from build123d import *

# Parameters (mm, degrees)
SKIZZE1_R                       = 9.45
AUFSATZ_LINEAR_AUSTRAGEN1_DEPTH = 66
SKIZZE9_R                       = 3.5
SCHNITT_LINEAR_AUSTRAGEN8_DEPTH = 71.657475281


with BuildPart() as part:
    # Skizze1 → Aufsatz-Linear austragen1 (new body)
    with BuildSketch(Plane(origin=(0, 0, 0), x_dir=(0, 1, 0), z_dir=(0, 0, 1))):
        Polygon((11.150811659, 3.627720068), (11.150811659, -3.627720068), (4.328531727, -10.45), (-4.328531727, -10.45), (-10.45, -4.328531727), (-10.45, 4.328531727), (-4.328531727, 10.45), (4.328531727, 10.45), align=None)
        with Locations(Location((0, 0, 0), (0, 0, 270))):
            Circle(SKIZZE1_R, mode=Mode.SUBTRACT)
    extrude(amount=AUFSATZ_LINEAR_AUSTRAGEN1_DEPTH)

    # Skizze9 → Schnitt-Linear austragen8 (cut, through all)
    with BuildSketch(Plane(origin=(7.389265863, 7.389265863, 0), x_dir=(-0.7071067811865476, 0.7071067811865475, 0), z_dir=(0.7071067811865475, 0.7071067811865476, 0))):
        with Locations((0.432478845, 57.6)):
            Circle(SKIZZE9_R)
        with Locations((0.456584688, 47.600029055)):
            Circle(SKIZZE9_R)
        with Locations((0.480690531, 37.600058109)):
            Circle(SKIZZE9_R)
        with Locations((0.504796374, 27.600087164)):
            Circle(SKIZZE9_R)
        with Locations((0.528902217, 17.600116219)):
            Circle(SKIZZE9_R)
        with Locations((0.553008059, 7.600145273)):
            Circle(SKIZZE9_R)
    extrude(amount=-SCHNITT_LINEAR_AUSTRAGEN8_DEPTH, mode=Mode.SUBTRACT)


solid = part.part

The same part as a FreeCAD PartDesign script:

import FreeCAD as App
import Part
import Sketcher

doc = App.newDocument("Part")
params = doc.addObject("Spreadsheet::Sheet", "Params")
for row, (alias, value) in enumerate([
    ("sketch1_diameter", "18.9 mm"),
    ("pad1_length", "66 mm"),
    ("sketch2_diameter", "7 mm"),
], start=1):
    params.set(f"A{row}", alias)
    params.set(f"B{row}", "=" + value)
    params.setAlias(f"B{row}", alias)

body = doc.addObject("PartDesign::Body", "Body")

# Sketch on XY plane
sketch1 = body.newObject("Sketcher::SketchObject", "Sketch")
sketch1.AttachmentSupport = (doc.getObject("XY_Plane"), [""])
sketch1.MapMode = "FlatFace"
sketch1.addGeometry(Part.LineSegment(App.Vector(4, 11, 0), App.Vector(-4, 11, 0)), False)
sketch1.addGeometry(Part.LineSegment(App.Vector(-4, 11, 0), App.Vector(-10, 4, 0)), False)
sketch1.addGeometry(Part.LineSegment(App.Vector(-10, 4, 0), App.Vector(-10, -4, 0)), False)
sketch1.addGeometry(Part.LineSegment(App.Vector(-10, -4, 0), App.Vector(-4, -10, 0)), False)
sketch1.addGeometry(Part.LineSegment(App.Vector(-4, -10, 0), App.Vector(4, -10, 0)), False)
sketch1.addGeometry(Part.LineSegment(App.Vector(4, -10, 0), App.Vector(10, -4, 0)), False)
sketch1.addGeometry(Part.LineSegment(App.Vector(10, -4, 0), App.Vector(10, 4, 0)), False)
sketch1.addGeometry(Part.LineSegment(App.Vector(10, 4, 0), App.Vector(4, 11, 0)), False)
sketch1.addGeometry(Part.Circle(App.Vector(0, 0, 0), App.Vector(0, 0, 1), 9), False)
sketch1.addConstraint(Sketcher.Constraint("Coincident", 0, 2, 1, 1))
sketch1.addConstraint(Sketcher.Constraint("Coincident", 1, 2, 2, 1))
sketch1.addConstraint(Sketcher.Constraint("Coincident", 2, 2, 3, 1))
sketch1.addConstraint(Sketcher.Constraint("Coincident", 3, 2, 4, 1))
sketch1.addConstraint(Sketcher.Constraint("Coincident", 4, 2, 5, 1))
sketch1.addConstraint(Sketcher.Constraint("Coincident", 5, 2, 6, 1))
sketch1.addConstraint(Sketcher.Constraint("Coincident", 6, 2, 7, 1))
sketch1.addConstraint(Sketcher.Constraint("Coincident", 7, 2, 0, 1))
sketch1.addConstraint(Sketcher.Constraint("Horizontal", 0))
sketch1.addConstraint(Sketcher.Constraint("Vertical", 2))
sketch1.addConstraint(Sketcher.Constraint("Horizontal", 4))
sketch1.addConstraint(Sketcher.Constraint("Vertical", 6))
sketch1.addConstraint(Sketcher.Constraint("Coincident", 8, 3, -1, 1))
sketch1.addConstraint(Sketcher.Constraint("Symmetric", 1, 2, 5, 2, -1, 1))
sketch1.addConstraint(Sketcher.Constraint("Perpendicular", 1, 3))
sketch1.addConstraint(Sketcher.Constraint("Perpendicular", 3, 5))
sketch1.addConstraint(Sketcher.Constraint("Perpendicular", 5, 7))
sketch1.addConstraint(Sketcher.Constraint("Horizontal", 2, 2, 5, 2))
sketch1.addConstraint(Sketcher.Constraint("Horizontal", 1, 2, 6, 2))
sketch1.addConstraint(Sketcher.Constraint("Equal", 4, 2))
sketch1.addConstraint(Sketcher.Constraint("Equal", 3, 5))
sketch1.addConstraint(Sketcher.Constraint("Diameter", 8, 18.9))
sketch1.addConstraint(Sketcher.Constraint("DistanceX", 2, 2, 5, 2, 20.9))
sketch1.addConstraint(Sketcher.Constraint("DistanceX", 0, 2, 0, 1, 7.25544))
sketch1.addConstraint(Sketcher.Constraint("DistanceX", 4, 1, 4, 2, 8.657063))
sketch1.setExpression("Constraints[21]", "Params.sketch1_diameter")
pad1 = body.newObject("PartDesign::Pad", "Pad")
pad1.Profile = sketch1
pad1.setExpression("Length", "Params.pad1_length")

# Sketch on an angled plane
sketch2 = body.newObject("Sketcher::SketchObject", "Sketch001")
sketch2.Placement = App.Placement(App.Vector(7.389266, 7.389266, 0), App.Rotation(App.Vector(-0.707106781, 0.707106781, 0), App.Vector(0, 0, 0.999999999), App.Vector(0.707106781, 0.707106781, 0), "ZXY"))
sketch2.addGeometry(Part.Circle(App.Vector(0.4, 57.6, 0), App.Vector(0, 0, 1), 3.5), False)
sketch2.addGeometry(Part.Circle(App.Vector(0.5, 47.6, 0), App.Vector(0, 0, 1), 3.5), False)
sketch2.addGeometry(Part.Circle(App.Vector(0.5, 37.6, 0), App.Vector(0, 0, 1), 3.5), False)
sketch2.addGeometry(Part.Circle(App.Vector(0.5, 27.6, 0), App.Vector(0, 0, 1), 3.5), False)
sketch2.addGeometry(Part.Circle(App.Vector(0.5, 17.6, 0), App.Vector(0, 0, 1), 3.5), False)
sketch2.addGeometry(Part.Circle(App.Vector(0.6, 7.6, 0), App.Vector(0, 0, 1), 3.5), False)
sketch2.addConstraint(Sketcher.Constraint("Equal", 0, 1))
sketch2.addConstraint(Sketcher.Constraint("Equal", 1, 2))
sketch2.addConstraint(Sketcher.Constraint("Equal", 2, 3))
sketch2.addConstraint(Sketcher.Constraint("Equal", 3, 4))
sketch2.addConstraint(Sketcher.Constraint("Equal", 4, 5))
sketch2.addConstraint(Sketcher.Constraint("Diameter", 0, 7.0))
sketch2.addConstraint(Sketcher.Constraint("DistanceY", -1, 1, 0, 3, 57.6))
sketch2.addConstraint(Sketcher.Constraint("DistanceX", -1, 1, 0, 3, 0.432479))
sketch2.addConstraint(Sketcher.Constraint("DistanceY", -1, 1, 1, 3, 47.600029))
sketch2.addConstraint(Sketcher.Constraint("DistanceX", -1, 1, 2, 3, 0.480691))
sketch2.addConstraint(Sketcher.Constraint("DistanceY", -1, 1, 2, 3, 37.600058))
sketch2.addConstraint(Sketcher.Constraint("DistanceX", -1, 1, 5, 3, 0.553008))
sketch2.addConstraint(Sketcher.Constraint("DistanceY", 3, 3, 2, 3, 9.999971))
sketch2.addConstraint(Sketcher.Constraint("DistanceX", 1, 3, 3, 3, 0.048212))
sketch2.addConstraint(Sketcher.Constraint("DistanceY", 4, 3, 3, 3, 9.999971))
sketch2.addConstraint(Sketcher.Constraint("DistanceX", 2, 3, 4, 3, 0.048212))
sketch2.addConstraint(Sketcher.Constraint("DistanceY", 5, 3, 4, 3, 9.999971))
sketch2.addConstraint(Sketcher.Constraint("DistanceX", 3, 3, 5, 3, 0.048212))
sketch2.setExpression("Constraints[5]", "Params.sketch2_diameter")
pocket1 = body.newObject("PartDesign::Pocket", "Pocket")
pocket1.Profile = sketch2
pocket1.Type = "ThroughAll"

doc.recompute()
